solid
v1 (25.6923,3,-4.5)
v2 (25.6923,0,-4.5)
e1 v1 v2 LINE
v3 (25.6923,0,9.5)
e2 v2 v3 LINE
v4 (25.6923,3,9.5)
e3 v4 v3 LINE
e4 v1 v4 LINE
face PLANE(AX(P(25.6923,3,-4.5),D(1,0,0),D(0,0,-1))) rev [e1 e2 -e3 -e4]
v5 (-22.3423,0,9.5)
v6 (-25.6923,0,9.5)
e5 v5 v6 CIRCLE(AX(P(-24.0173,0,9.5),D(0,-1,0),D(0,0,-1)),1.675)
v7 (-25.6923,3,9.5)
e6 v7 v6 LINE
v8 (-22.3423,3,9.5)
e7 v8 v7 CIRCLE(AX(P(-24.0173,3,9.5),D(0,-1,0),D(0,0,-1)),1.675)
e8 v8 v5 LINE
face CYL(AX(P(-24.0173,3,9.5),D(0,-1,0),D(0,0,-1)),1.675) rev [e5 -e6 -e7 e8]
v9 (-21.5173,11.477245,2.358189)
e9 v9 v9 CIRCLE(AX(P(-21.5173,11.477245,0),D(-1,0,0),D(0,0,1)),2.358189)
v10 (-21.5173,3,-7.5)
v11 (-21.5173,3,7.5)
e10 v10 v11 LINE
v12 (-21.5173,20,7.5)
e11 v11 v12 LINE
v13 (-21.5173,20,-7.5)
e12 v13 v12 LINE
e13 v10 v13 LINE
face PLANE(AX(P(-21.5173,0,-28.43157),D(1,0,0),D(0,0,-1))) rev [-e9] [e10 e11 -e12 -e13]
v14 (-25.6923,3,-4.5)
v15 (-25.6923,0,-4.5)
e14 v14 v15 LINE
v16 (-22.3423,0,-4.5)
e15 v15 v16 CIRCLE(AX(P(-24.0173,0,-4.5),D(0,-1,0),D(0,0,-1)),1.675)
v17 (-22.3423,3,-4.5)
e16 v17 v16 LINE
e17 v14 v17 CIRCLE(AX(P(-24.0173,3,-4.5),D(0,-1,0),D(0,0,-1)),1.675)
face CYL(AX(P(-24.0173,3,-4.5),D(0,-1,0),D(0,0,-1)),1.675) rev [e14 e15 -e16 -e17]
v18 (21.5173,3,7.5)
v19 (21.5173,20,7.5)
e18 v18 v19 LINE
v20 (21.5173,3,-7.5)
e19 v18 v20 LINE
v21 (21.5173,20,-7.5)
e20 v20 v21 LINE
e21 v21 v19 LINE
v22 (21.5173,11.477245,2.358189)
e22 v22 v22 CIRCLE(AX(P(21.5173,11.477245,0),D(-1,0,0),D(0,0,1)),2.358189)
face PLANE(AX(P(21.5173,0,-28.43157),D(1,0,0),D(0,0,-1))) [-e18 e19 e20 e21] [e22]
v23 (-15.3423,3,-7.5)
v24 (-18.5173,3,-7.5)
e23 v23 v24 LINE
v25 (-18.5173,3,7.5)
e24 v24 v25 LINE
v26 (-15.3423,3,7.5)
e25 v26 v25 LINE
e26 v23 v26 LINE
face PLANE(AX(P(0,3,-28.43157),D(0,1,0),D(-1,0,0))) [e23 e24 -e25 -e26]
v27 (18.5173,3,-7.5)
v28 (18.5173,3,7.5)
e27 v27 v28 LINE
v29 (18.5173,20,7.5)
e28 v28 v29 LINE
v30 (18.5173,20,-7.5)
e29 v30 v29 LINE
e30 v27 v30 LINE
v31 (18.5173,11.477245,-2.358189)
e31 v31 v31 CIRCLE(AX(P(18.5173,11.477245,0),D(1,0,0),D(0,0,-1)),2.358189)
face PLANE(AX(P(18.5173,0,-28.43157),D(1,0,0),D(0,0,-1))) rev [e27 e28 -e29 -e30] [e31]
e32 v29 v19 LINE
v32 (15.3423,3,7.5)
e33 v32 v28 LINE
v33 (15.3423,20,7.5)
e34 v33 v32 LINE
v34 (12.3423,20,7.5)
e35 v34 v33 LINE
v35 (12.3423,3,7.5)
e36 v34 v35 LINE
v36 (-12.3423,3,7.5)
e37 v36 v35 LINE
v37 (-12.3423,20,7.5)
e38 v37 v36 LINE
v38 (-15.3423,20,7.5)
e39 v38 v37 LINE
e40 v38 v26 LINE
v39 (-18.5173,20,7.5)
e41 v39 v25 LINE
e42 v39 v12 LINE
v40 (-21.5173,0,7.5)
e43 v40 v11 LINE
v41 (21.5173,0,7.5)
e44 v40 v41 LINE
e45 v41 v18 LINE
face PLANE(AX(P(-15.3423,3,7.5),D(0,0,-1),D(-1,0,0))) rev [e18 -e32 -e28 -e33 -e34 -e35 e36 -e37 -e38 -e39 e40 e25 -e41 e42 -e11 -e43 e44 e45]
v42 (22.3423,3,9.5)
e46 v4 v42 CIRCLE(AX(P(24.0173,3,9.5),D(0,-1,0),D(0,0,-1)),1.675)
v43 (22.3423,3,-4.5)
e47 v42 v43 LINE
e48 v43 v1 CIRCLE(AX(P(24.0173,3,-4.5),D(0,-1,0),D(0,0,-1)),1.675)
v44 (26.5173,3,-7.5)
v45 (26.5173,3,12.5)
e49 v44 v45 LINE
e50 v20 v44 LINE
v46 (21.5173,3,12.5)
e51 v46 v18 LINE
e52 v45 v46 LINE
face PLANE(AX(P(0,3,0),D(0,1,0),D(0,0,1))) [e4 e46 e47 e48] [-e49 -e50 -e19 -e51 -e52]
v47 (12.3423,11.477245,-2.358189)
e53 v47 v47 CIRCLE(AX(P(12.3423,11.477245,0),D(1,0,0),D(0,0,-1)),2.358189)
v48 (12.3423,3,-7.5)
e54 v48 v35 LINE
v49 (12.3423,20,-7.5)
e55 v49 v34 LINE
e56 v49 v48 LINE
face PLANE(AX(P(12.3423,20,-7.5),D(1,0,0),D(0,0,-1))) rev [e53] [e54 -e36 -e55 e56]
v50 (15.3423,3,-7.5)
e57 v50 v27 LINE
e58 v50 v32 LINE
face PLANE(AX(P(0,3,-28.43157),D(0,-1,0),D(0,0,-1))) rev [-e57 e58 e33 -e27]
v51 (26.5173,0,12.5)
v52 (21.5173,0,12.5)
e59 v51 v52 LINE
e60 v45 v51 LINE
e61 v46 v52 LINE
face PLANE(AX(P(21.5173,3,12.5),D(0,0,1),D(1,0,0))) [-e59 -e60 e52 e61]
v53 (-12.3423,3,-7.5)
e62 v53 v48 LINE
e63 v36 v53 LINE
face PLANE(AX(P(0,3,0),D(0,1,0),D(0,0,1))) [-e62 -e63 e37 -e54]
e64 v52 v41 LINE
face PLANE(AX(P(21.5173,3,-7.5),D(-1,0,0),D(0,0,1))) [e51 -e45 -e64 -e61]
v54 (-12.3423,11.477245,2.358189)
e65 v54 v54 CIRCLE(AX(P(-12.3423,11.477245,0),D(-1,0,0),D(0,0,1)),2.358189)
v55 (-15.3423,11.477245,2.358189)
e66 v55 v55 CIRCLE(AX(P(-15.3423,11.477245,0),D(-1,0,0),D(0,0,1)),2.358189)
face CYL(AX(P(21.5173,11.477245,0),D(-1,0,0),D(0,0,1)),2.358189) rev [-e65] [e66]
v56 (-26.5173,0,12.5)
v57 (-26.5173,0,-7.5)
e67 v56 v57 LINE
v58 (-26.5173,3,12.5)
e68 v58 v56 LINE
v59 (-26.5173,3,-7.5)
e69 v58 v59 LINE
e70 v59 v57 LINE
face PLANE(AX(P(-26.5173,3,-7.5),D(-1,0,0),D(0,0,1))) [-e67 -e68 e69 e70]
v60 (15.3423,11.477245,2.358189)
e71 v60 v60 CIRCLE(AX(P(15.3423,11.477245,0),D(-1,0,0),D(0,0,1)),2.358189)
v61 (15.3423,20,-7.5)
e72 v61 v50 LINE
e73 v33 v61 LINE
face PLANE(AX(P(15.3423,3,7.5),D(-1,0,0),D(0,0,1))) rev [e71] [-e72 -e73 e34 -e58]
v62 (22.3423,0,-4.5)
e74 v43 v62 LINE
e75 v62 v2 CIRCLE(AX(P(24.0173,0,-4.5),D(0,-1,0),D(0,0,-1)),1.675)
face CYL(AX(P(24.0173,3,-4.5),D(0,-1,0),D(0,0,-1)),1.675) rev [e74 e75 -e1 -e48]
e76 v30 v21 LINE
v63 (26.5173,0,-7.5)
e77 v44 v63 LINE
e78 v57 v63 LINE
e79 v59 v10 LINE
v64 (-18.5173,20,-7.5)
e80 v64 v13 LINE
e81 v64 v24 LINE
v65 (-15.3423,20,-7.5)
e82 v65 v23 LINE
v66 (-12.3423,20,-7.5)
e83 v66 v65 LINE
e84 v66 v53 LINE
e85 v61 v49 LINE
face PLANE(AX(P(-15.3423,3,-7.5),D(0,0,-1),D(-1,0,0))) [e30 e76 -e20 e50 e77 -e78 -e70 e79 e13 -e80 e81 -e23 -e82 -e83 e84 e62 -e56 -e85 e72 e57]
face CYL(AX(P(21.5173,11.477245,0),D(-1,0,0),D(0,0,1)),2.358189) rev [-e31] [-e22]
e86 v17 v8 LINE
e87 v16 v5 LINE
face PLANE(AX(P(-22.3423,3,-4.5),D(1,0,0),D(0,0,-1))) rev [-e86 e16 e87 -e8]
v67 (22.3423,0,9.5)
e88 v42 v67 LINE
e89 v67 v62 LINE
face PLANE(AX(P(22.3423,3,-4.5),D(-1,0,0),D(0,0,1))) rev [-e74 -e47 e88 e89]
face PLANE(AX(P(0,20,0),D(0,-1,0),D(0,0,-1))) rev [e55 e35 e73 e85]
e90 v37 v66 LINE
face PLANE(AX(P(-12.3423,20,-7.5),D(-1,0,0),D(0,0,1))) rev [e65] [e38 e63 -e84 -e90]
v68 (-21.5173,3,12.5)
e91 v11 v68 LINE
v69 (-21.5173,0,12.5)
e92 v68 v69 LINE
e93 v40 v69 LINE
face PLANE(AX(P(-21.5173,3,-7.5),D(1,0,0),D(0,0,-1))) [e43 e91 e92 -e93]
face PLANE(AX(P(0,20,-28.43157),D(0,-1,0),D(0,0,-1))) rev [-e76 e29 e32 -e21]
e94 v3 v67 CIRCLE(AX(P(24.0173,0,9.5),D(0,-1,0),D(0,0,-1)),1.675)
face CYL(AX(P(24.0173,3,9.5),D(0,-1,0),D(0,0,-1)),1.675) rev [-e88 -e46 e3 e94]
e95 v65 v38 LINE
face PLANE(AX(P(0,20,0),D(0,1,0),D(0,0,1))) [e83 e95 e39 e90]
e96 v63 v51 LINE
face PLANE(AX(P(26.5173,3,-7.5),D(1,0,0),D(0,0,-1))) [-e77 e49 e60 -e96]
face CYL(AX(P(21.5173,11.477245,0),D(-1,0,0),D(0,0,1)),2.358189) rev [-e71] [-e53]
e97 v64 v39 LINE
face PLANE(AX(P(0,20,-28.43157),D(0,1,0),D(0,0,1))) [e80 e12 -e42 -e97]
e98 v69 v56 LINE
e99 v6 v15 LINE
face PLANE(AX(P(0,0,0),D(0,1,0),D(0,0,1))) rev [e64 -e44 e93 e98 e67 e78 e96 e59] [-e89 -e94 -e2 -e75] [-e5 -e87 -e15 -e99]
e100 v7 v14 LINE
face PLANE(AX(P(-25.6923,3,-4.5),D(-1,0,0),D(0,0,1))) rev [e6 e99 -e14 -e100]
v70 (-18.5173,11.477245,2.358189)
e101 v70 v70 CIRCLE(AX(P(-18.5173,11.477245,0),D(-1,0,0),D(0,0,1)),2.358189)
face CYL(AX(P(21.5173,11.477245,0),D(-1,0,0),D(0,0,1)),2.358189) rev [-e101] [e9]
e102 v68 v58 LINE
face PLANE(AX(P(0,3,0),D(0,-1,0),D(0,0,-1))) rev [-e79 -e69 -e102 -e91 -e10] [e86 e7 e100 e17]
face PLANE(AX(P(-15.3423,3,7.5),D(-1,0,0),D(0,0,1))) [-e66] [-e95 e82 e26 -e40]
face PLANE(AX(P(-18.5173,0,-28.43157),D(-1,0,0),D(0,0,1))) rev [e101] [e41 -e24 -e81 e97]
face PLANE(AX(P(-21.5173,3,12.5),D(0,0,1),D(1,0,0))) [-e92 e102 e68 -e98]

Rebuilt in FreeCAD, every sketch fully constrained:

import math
import FreeCAD as App
import Part
import Sketcher
from FreeCAD import Vector
Q = App.Units.Quantity

doc = App.newDocument("Part")
body = doc.addObject("PartDesign::Body", "Body")

# Sketch on XZ plane
sketch1 = body.newObject("Sketcher::SketchObject", "Sketch")
sketch1.AttachmentSupport = (doc.getObject("XZ_Plane"), [""])
sketch1.MapMode = "FlatFace"
sketch1.addGeometry(Part.LineSegment(Vector(-15, -8, 0), Vector(-15, 8, 0)), False)
sketch1.addGeometry(Part.LineSegment(Vector(-15, 8, 0), Vector(15, 8, 0)), False)
sketch1.addGeometry(Part.LineSegment(Vector(15, 8, 0), Vector(15, -8, 0)), False)
sketch1.addGeometry(Part.LineSegment(Vector(15, -8, 0), Vector(-15, -8, 0)), False)
sketch1.addConstraint(Sketcher.Constraint("Coincident", 0, 2, 1, 1))
sketch1.addConstraint(Sketcher.Constraint("Coincident", 1, 2, 2, 1))
sketch1.addConstraint(Sketcher.Constraint("Coincident", 2, 2, 3, 1))
sketch1.addConstraint(Sketcher.Constraint("Coincident", 3, 2, 0, 1))
sketch1.addConstraint(Sketcher.Constraint("Vertical", 0))
sketch1.addConstraint(Sketcher.Constraint("Horizontal", 1))
sketch1.addConstraint(Sketcher.Constraint("Vertical", 2))
sketch1.addConstraint(Sketcher.Constraint("Horizontal", 3))
sketch1.addConstraint(Sketcher.Constraint("Symmetric", 0, 2, 2, 2, -1, 1))
sketch1.addConstraint(Sketcher.Constraint("DistanceY", 0, 1, 0, 2, Q("15 mm")))
sketch1.addConstraint(Sketcher.Constraint("DistanceX", 1, 1, 1, 2, Q("30.6846 mm")))
pad1 = body.newObject("PartDesign::Pad", "Pad")
pad1.Profile = sketch1
pad1.Length = 3
pad1.Reversed = True

# Sketch on XZ plane
sketch2 = body.newObject("Sketcher::SketchObject", "Sketch001")
sketch2.AttachmentSupport = (doc.getObject("XZ_Plane"), [""])
sketch2.MapMode = "FlatFace"
sketch2.AttachmentOffset = App.Placement(Vector(0, 0, -3), App.Rotation())
sketch2.addGeometry(Part.LineSegment(Vector(-15.3, -7.5, 0), Vector(-15.3, 7.5, 0)), False)
sketch2.addGeometry(Part.LineSegment(Vector(-15.3, 7.5, 0), Vector(-12.3, 7.5, 0)), False)
sketch2.addGeometry(Part.LineSegment(Vector(-12.3, 7.5, 0), Vector(-12.3, -7.5, 0)), False)
sketch2.addGeometry(Part.LineSegment(Vector(-12.3, -7.5, 0), Vector(-15.3, -7.5, 0)), False)
sketch2.addGeometry(Part.LineSegment(Vector(12.3, -7.5, 0), Vector(12.3, 7.5, 0)), False)
sketch2.addGeometry(Part.LineSegment(Vector(12.3, 7.5, 0), Vector(15.3, 7.5, 0)), False)
sketch2.addGeometry(Part.LineSegment(Vector(15.3, 7.5, 0), Vector(15.3, -7.5, 0)), False)
sketch2.addGeometry(Part.LineSegment(Vector(15.3, -7.5, 0), Vector(12.3, -7.5, 0)), False)
sketch2.addConstraint(Sketcher.Constraint("Coincident", 0, 2, 1, 1))
sketch2.addConstraint(Sketcher.Constraint("Coincident", 1, 2, 2, 1))
sketch2.addConstraint(Sketcher.Constraint("Coincident", 2, 2, 3, 1))
sketch2.addConstraint(Sketcher.Constraint("Coincident", 3, 2, 0, 1))
sketch2.addConstraint(Sketcher.Constraint("Coincident", 4, 2, 5, 1))
sketch2.addConstraint(Sketcher.Constraint("Coincident", 5, 2, 6, 1))
sketch2.addConstraint(Sketcher.Constraint("Coincident", 6, 2, 7, 1))
sketch2.addConstraint(Sketcher.Constraint("Coincident", 7, 2, 4, 1))
sketch2.addConstraint(Sketcher.Constraint("Vertical", 0))
sketch2.addConstraint(Sketcher.Constraint("Horizontal", 1))
sketch2.addConstraint(Sketcher.Constraint("Vertical", 2))
sketch2.addConstraint(Sketcher.Constraint("Horizontal", 3))
sketch2.addConstraint(Sketcher.Constraint("Vertical", 4))
sketch2.addConstraint(Sketcher.Constraint("Horizontal", 5))
sketch2.addConstraint(Sketcher.Constraint("Vertical", 6))
sketch2.addConstraint(Sketcher.Constraint("Horizontal", 7))
sketch2.addConstraint(Sketcher.Constraint("Symmetric", 2, 2, 4, 2, -1, 1))
sketch2.addConstraint(Sketcher.Constraint("Symmetric", 0, 2, 6, 2, -1, 1))
sketch2.addConstraint(Sketcher.Constraint("Horizontal", 1, 2, 4, 2))
sketch2.addConstraint(Sketcher.Constraint("DistanceX", 1, 1, 1, 2, Q("3 mm")))
sketch2.addConstraint(Sketcher.Constraint("DistanceY", 0, 1, 0, 2, Q("15 mm")))
sketch2.addConstraint(Sketcher.Constraint("DistanceX", 0, 2, -1, 1, Q("15.3423 mm")))
pad2 = body.newObject("PartDesign::Pad", "Pad001")
pad2.Profile = sketch2
pad2.Length = 17
pad2.Reversed = True

# Sketch on XY plane
sketch3 = body.newObject("Sketcher::SketchObject", "Sketch002")
sketch3.AttachmentSupport = (doc.getObject("XY_Plane"), [""])
sketch3.MapMode = "FlatFace"
sketch3.AttachmentOffset = App.Placement(Vector(0, 0, 7.5), App.Rotation())
sketch3.addGeometry(Part.LineSegment(Vector(-18.5, 3, 0), Vector(-18.5, 20, 0)), False)
sketch3.addGeometry(Part.LineSegment(Vector(-18.5, 20, 0), Vector(-21.5, 20, 0)), False)
sketch3.addGeometry(Part.LineSegment(Vector(-21.5, 20, 0), Vector(-21.5, 0, 0)), False)
sketch3.addGeometry(Part.LineSegment(Vector(-21.5, 0, 0), Vector(-15.3, 0, 0)), False)
sketch3.addGeometry(Part.LineSegment(Vector(-15.3, 0, 0), Vector(-15.3, 3, 0)), False)
sketch3.addGeometry(Part.LineSegment(Vector(-15.3, 3, 0), Vector(-18.5, 3, 0)), False)
sketch3.addGeometry(Part.LineSegment(Vector(15.3, 3, 0), Vector(15.3, 0, 0)), False)
sketch3.addGeometry(Part.LineSegment(Vector(15.3, 0, 0), Vector(21.5, 0, 0)), False)
sketch3.addGeometry(Part.LineSegment(Vector(21.5, 0, 0), Vector(21.5, 20, 0)), False)
sketch3.addGeometry(Part.LineSegment(Vector(21.5, 20, 0), Vector(18.5, 20, 0)), False)
sketch3.addGeometry(Part.LineSegment(Vector(18.5, 20, 0), Vector(18.5, 3, 0)), False)
sketch3.addGeometry(Part.LineSegment(Vector(18.5, 3, 0), Vector(15.3, 3, 0)), False)
sketch3.addConstraint(Sketcher.Constraint("Coincident", 0, 2, 1, 1))
sketch3.addConstraint(Sketcher.Constraint("Coincident", 1, 2, 2, 1))
sketch3.addConstraint(Sketcher.Constraint("Coincident", 2, 2, 3, 1))
sketch3.addConstraint(Sketcher.Constraint("Coincident", 3, 2, 4, 1))
sketch3.addConstraint(Sketcher.Constraint("Coincident", 4, 2, 5, 1))
sketch3.addConstraint(Sketcher.Constraint("Coincident", 5, 2, 0, 1))
sketch3.addConstraint(Sketcher.Constraint("Coincident", 6, 2, 7, 1))
sketch3.addConstraint(Sketcher.Constraint("Coincident", 7, 2, 8, 1))
sketch3.addConstraint(Sketcher.Constraint("Coincident", 8, 2, 9, 1))
sketch3.addConstraint(Sketcher.Constraint("Coincident", 9, 2, 10, 1))
sketch3.addConstraint(Sketcher.Constraint("Coincident", 10, 2, 11, 1))
sketch3.addConstraint(Sketcher.Constraint("Coincident", 11, 2, 6, 1))
sketch3.addConstraint(Sketcher.Constraint("Vertical", 0))
sketch3.addConstraint(Sketcher.Constraint("Horizontal", 1))
sketch3.addConstraint(Sketcher.Constraint("Vertical", 2))
sketch3.addConstraint(Sketcher.Constraint("Horizontal", 3))
sketch3.addConstraint(Sketcher.Constraint("Vertical", 4))
sketch3.addConstraint(Sketcher.Constraint("Horizontal", 5))
sketch3.addConstraint(Sketcher.Constraint("Vertical", 6))
sketch3.addConstraint(Sketcher.Constraint("Horizontal", 7))
sketch3.addConstraint(Sketcher.Constraint("Vertical", 8))
sketch3.addConstraint(Sketcher.Constraint("Horizontal", 9))
sketch3.addConstraint(Sketcher.Constraint("Vertical", 10))
sketch3.addConstraint(Sketcher.Constraint("Horizontal", 11))
sketch3.addConstraint(Sketcher.Constraint("Symmetric", 3, 2, 6, 2, -1, 1))
sketch3.addConstraint(Sketcher.Constraint("Symmetric", 2, 2, 7, 2, -2))
sketch3.addConstraint(Sketcher.Constraint("Symmetric", 0, 2, 9, 2, -2))
sketch3.addConstraint(Sketcher.Constraint("Horizontal", 5, 2, 10, 2))
sketch3.addConstraint(Sketcher.Constraint("Equal", 9, 4))
sketch3.addConstraint(Sketcher.Constraint("DistanceX", 1, 2, 1, 1, Q("3 mm")))
sketch3.addConstraint(Sketcher.Constraint("DistanceY", 0, 1, 0, 2, Q("17 mm")))
sketch3.addConstraint(Sketcher.Constraint("DistanceX", 3, 1, 3, 2, Q("6.175 mm")))
sketch3.addConstraint(Sketcher.Constraint("DistanceX", 0, 2, -1, 1, Q("18.5173 mm")))
pad3 = body.newObject("PartDesign::Pad", "Pad002")
pad3.Profile = sketch3
pad3.Length = 15
pad3.Reversed = True

# Sketch on YZ plane
sketch4 = body.newObject("Sketcher::SketchObject", "Sketch003")
sketch4.AttachmentSupport = (doc.getObject("YZ_Plane"), [""])
sketch4.MapMode = "FlatFace"
sketch4.AttachmentOffset = App.Placement(Vector(0, 0, -15.3423), App.Rotation())
sketch4.addGeometry(Part.Circle(Vector(11.5, 0, 0), Vector(0, 0, 1), 2.4), False)
sketch4.addConstraint(Sketcher.Constraint("PointOnObject", 0, 3, -1))
sketch4.addConstraint(Sketcher.Constraint("Diameter", 0, Q("4.716378 mm")))
sketch4.addConstraint(Sketcher.Constraint("DistanceX", -1, 1, 0, 3, Q("11.477245 mm")))
pocket1 = body.newObject("PartDesign::Pocket", "Pocket")
pocket1.Profile = sketch4
pocket1.Type = "ThroughAll"
pocket1.Midplane = True

# Sketch on XZ plane
sketch5 = body.newObject("Sketcher::SketchObject", "Sketch004")
sketch5.AttachmentSupport = (doc.getObject("XZ_Plane"), [""])
sketch5.MapMode = "FlatFace"
sketch5.addGeometry(Part.LineSegment(Vector(-21.5, -7.5, 0), Vector(-21.5, 12.5, 0)), False)
sketch5.addGeometry(Part.LineSegment(Vector(-21.5, 12.5, 0), Vector(-26.5, 12.5, 0)), False)
sketch5.addGeometry(Part.LineSegment(Vector(-26.5, 12.5, 0), Vector(-26.5, -7.5, 0)), False)
sketch5.addGeometry(Part.LineSegment(Vector(-26.5, -7.5, 0), Vector(-21.5, -7.5, 0)), False)
sketch5.addGeometry(Part.ArcOfCircle(Part.Circle(Vector(-24, -4.5, 0), Vector(0, 0, 1), 1.7), math.radians(180), math.radians(360)), False)
sketch5.addGeometry(Part.LineSegment(Vector(-25.7, -4.5, 0), Vector(-25.7, 9.5, 0)), False)
sketch5.addGeometry(Part.ArcOfCircle(Part.Circle(Vector(-24, 9.5, 0), Vector(0, 0, 1), 1.7), math.radians(0), math.radians(180)), False)
sketch5.addGeometry(Part.LineSegment(Vector(-22.3, 9.5, 0), Vector(-22.3, -4.5, 0)), False)
sketch5.addGeometry(Part.LineSegment(Vector(26.5, -7.5, 0), Vector(26.5, 12.5, 0)), False)
sketch5.addGeometry(Part.LineSegment(Vector(26.5, 12.5, 0), Vector(21.5, 12.5, 0)), False)
sketch5.addGeometry(Part.LineSegment(Vector(21.5, 12.5, 0), Vector(21.5, -7.5, 0)), False)
sketch5.addGeometry(Part.LineSegment(Vector(21.5, -7.5, 0), Vector(26.5, -7.5, 0)), False)
sketch5.addGeometry(Part.ArcOfCircle(Part.Circle(Vector(24, -4.5, 0), Vector(0, 0, 1), 1.7), math.radians(180), math.radians(360)), False)
sketch5.addGeometry(Part.LineSegment(Vector(22.3, -4.5, 0), Vector(22.3, 9.5, 0)), False)
sketch5.addGeometry(Part.ArcOfCircle(Part.Circle(Vector(24, 9.5, 0), Vector(0, 0, 1), 1.7), math.radians(0), math.radians(180)), False)
sketch5.addGeometry(Part.LineSegment(Vector(25.7, 9.5, 0), Vector(25.7, -4.5, 0)), False)
sketch5.addConstraint(Sketcher.Constraint("Coincident", 0, 2, 1, 1))
sketch5.addConstraint(Sketcher.Constraint("Coincident", 1, 2, 2, 1))
sketch5.addConstraint(Sketcher.Constraint("Coincident", 2, 2, 3, 1))
sketch5.addConstraint(Sketcher.Constraint("Coincident", 3, 2, 0, 1))
sketch5.addConstraint(Sketcher.Constraint("Tangent", 4, 1, 5, 1))
sketch5.addConstraint(Sketcher.Constraint("Tangent", 5, 2, 6, 2))
sketch5.addConstraint(Sketcher.Constraint("Tangent", 6, 1, 7, 1))
sketch5.addConstraint(Sketcher.Constraint("Tangent", 7, 2, 4, 2))
sketch5.addConstraint(Sketcher.Constraint("Coincident", 8, 2, 9, 1))
sketch5.addConstraint(Sketcher.Constraint("Coincident", 9, 2, 10, 1))
sketch5.addConstraint(Sketcher.Constraint("Coincident", 10, 2, 11, 1))
sketch5.addConstraint(Sketcher.Constraint("Coincident", 11, 2, 8, 1))
sketch5.addConstraint(Sketcher.Constraint("Tangent", 12, 1, 13, 1))
sketch5.addConstraint(Sketcher.Constraint("Tangent", 13, 2, 14, 2))
sketch5.addConstraint(Sketcher.Constraint("Tangent", 14, 1, 15, 1))
sketch5.addConstraint(Sketcher.Constraint("Tangent", 15, 2, 12, 2))
sketch5.addConstraint(Sketcher.Constraint("Vertical", 0))
sketch5.addConstraint(Sketcher.Constraint("Horizontal", 1))
sketch5.addConstraint(Sketcher.Constraint("Vertical", 2))
sketch5.addConstraint(Sketcher.Constraint("Horizontal", 3))
sketch5.addConstraint(Sketcher.Constraint("Vertical", 5))
sketch5.addConstraint(Sketcher.Constraint("Vertical", 7))
sketch5.addConstraint(Sketcher.Constraint("Vertical", 8))
sketch5.addConstraint(Sketcher.Constraint("Horizontal", 9))
sketch5.addConstraint(Sketcher.Constraint("Vertical", 10))
sketch5.addConstraint(Sketcher.Constraint("Horizontal", 11))
sketch5.addConstraint(Sketcher.Constraint("Vertical", 13))
sketch5.addConstraint(Sketcher.Constraint("Vertical", 15))
sketch5.addConstraint(Sketcher.Constraint("Equal", 6, 12))
sketch5.addConstraint(Sketcher.Constraint("Symmetric", 4, 3, 12, 3, -2))
sketch5.addConstraint(Sketcher.Constraint("Symmetric", 1, 2, 8, 2, -2))
sketch5.addConstraint(Sketcher.Constraint("Symmetric", 3, 2, 10, 2, -2))
sketch5.addConstraint(Sketcher.Constraint("Horizontal", 6, 3, 14, 3))
sketch5.addConstraint(Sketcher.Constraint("DistanceX", 1, 2, 1, 1, Q("5 mm")))
sketch5.addConstraint(Sketcher.Constraint("DistanceY", 0, 1, 0, 2, Q("20 mm")))
sketch5.addConstraint(Sketcher.Constraint("DistanceY", 5, 1, 5, 2, Q("14 mm")))
sketch5.addConstraint(Sketcher.Constraint("Radius", 4, Q("1.675 mm")))
sketch5.addConstraint(Sketcher.Constraint("DistanceY", 6, 3, 0, 2, Q("3 mm")))
sketch5.addConstraint(Sketcher.Constraint("DistanceY", 4, 3, -1, 1, Q("4.5 mm")))
sketch5.addConstraint(Sketcher.Constraint("DistanceX", 6, 3, 0, 2, Q("2.5 mm")))
sketch5.addConstraint(Sketcher.Constraint("DistanceX", 4, 3, -1, 1, Q("24.0173 mm")))
pad4 = body.newObject("PartDesign::Pad", "Pad003")
pad4.Profile = sketch5
pad4.Length = 3
pad4.Reversed = True

doc.recompute()
